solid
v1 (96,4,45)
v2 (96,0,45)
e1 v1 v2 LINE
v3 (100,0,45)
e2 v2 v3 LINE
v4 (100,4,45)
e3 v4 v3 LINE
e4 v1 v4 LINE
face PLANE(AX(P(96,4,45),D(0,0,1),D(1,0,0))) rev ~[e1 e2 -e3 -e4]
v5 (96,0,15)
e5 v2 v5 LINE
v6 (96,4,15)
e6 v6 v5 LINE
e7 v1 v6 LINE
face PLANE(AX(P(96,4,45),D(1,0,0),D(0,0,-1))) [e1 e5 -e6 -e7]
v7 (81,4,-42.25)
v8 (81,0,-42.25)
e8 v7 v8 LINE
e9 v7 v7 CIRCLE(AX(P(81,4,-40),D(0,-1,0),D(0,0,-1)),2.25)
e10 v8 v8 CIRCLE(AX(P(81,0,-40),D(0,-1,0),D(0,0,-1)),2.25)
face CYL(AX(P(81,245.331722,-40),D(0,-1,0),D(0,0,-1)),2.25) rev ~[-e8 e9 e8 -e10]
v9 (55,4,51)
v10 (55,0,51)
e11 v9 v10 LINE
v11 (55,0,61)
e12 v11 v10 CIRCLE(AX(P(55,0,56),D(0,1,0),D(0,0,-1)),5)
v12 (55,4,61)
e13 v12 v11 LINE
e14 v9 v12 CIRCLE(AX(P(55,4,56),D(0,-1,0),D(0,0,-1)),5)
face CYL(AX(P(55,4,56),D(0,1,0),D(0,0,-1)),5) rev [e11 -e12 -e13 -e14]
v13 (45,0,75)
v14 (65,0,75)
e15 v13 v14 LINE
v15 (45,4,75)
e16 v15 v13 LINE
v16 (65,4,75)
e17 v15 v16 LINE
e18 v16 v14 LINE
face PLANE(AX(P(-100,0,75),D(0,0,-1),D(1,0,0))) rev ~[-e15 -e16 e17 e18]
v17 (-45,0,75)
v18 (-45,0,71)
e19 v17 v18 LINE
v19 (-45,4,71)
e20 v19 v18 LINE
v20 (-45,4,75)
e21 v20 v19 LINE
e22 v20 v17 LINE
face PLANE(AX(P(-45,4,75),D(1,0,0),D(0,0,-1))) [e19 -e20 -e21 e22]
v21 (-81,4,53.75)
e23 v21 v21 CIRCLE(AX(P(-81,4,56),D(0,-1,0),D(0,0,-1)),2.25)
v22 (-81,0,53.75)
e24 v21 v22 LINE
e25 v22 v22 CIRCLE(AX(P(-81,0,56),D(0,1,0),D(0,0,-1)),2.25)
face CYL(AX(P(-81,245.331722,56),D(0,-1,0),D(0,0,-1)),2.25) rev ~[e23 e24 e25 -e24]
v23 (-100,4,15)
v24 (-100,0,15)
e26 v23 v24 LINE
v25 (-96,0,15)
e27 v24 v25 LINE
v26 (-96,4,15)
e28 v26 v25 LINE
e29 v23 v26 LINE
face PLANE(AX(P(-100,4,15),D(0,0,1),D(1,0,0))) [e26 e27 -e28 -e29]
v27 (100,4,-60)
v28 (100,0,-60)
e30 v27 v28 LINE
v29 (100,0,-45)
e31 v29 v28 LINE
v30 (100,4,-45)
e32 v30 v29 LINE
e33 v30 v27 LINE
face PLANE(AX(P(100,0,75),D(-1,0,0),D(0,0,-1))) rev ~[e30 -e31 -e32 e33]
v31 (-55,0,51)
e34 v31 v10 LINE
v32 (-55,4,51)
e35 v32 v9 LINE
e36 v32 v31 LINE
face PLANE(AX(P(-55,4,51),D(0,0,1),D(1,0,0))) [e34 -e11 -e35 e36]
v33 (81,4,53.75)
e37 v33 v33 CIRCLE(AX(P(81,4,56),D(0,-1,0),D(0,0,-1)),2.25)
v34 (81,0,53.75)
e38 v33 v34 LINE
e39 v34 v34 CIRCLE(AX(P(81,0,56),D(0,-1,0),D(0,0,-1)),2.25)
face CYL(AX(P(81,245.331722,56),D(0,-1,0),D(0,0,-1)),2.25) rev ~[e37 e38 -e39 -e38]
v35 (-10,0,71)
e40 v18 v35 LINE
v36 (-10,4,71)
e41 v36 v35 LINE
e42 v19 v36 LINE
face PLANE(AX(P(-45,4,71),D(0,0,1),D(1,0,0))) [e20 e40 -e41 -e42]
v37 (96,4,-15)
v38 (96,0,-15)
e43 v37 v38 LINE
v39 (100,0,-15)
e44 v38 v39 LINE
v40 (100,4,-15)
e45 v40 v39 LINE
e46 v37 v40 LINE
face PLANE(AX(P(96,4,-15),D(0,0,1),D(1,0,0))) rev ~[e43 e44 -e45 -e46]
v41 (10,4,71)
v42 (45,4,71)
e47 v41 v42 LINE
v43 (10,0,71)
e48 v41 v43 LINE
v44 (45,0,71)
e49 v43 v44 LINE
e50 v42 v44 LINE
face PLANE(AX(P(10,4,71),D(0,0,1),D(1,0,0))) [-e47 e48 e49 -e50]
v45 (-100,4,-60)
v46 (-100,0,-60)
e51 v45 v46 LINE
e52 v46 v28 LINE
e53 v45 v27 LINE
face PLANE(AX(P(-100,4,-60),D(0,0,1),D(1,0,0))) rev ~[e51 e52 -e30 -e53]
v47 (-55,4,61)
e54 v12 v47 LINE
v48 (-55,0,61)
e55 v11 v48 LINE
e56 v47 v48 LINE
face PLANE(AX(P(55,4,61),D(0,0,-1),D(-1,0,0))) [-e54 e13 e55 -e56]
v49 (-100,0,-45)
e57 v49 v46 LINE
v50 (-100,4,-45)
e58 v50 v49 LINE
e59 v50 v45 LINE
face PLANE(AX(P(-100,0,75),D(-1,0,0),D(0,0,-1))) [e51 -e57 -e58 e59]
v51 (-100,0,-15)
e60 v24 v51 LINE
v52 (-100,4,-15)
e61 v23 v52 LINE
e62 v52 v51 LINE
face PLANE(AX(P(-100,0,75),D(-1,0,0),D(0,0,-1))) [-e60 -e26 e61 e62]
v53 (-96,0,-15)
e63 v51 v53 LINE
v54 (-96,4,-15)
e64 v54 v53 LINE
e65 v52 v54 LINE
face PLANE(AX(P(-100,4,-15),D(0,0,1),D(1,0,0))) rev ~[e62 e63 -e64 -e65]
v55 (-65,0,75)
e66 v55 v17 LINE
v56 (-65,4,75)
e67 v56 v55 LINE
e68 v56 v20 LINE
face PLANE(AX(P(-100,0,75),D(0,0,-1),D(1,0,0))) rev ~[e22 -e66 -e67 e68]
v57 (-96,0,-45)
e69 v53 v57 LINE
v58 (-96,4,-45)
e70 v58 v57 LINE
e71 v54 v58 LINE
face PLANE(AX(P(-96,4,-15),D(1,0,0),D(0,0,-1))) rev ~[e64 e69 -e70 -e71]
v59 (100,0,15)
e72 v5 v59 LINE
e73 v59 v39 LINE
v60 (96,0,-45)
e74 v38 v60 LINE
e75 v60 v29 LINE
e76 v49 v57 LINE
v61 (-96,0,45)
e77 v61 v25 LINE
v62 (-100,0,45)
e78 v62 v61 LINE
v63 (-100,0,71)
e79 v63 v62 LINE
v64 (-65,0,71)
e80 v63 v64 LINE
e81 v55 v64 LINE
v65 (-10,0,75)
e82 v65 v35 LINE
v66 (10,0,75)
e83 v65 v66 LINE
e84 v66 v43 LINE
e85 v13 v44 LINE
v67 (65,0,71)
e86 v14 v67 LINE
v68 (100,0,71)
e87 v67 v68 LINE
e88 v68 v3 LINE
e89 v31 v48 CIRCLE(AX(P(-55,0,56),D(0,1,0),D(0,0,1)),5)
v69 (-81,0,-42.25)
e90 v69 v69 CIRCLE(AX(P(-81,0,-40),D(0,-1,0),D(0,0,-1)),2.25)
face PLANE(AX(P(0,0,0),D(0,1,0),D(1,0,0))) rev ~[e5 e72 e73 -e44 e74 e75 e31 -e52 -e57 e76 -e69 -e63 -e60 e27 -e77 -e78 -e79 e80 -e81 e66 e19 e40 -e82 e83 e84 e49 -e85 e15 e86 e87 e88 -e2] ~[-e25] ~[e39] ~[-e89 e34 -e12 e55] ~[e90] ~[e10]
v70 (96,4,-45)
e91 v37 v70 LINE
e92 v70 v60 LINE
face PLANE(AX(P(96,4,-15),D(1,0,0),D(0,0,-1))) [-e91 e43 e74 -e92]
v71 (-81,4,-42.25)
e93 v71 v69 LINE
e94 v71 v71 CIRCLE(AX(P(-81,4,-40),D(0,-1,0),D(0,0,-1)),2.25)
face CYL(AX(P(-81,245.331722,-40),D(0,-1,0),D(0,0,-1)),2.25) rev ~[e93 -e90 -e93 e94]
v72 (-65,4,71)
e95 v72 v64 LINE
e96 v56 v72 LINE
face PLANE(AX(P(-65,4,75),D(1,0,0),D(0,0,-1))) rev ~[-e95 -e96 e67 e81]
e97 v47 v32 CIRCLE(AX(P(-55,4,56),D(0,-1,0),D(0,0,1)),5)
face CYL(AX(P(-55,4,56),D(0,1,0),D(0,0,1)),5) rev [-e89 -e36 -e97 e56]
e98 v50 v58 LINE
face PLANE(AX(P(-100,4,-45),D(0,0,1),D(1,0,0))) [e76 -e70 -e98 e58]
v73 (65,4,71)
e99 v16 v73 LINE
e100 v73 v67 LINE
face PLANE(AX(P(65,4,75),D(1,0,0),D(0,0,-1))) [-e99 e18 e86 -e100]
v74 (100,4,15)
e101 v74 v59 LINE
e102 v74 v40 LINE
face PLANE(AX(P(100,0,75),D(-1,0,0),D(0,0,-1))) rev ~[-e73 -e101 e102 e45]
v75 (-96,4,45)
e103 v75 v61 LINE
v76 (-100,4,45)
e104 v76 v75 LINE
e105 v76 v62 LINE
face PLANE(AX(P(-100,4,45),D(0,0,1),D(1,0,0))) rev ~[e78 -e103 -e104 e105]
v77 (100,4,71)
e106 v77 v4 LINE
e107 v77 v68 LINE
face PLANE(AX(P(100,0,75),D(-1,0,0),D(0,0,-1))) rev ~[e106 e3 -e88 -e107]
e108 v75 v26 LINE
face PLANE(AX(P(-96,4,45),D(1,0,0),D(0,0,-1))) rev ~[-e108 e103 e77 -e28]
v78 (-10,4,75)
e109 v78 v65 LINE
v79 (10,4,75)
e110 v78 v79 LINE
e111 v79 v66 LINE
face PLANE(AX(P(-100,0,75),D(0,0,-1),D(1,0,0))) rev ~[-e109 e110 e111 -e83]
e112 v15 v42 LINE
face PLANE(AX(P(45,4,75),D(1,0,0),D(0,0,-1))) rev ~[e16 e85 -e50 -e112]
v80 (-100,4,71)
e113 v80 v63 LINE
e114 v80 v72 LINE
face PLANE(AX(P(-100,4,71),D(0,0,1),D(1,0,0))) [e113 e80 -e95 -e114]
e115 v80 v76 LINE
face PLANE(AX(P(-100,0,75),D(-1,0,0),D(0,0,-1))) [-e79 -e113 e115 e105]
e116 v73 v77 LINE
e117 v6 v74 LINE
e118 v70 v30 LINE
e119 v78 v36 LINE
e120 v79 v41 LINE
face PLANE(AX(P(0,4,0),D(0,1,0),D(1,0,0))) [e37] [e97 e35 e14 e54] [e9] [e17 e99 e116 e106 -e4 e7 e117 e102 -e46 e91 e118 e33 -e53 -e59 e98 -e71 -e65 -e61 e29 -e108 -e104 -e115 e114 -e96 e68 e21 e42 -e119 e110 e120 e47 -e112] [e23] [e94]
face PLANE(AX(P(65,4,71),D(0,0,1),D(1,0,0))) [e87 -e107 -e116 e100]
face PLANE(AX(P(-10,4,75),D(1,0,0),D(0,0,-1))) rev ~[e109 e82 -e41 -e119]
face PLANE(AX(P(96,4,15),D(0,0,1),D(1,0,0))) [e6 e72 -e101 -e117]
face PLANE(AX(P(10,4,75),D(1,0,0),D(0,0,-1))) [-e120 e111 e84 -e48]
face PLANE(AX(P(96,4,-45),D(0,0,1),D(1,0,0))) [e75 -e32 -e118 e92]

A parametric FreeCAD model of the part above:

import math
import FreeCAD as App
import Part
import Sketcher


def add_polygon(sketch, points):
    """Adds a closed chain of lines whose ends are joined by coincident constraints."""
    first, n = sketch.GeometryCount, len(points)
    for a, b in zip(points, points[1:] + points[:1]):
        sketch.addGeometry(Part.LineSegment(App.Vector(*a, 0), App.Vector(*b, 0)), False)
    for i in range(n):
        sketch.addConstraint(Sketcher.Constraint("Coincident", first + i, 2, first + (i + 1) % n, 1))

doc = App.newDocument("Part")
body = doc.addObject("PartDesign::Body", "Body")

# Sketch on XZ plane
sketch1 = doc.addObject("Sketcher::SketchObject", "Sketch")
body.addObject(sketch1)
sketch1.AttachmentSupport = (doc.XZ_Plane, [""])
sketch1.MapMode = "FlatFace"
add_polygon(sketch1, [(-100, -75), (-100, 75), (100, 75), (100, -75)])  # lines 0-3
sketch1.addConstraint(Sketcher.Constraint("Vertical", 0))
sketch1.addConstraint(Sketcher.Constraint("Horizontal", 1))
sketch1.addConstraint(Sketcher.Constraint("Vertical", 2))
sketch1.addConstraint(Sketcher.Constraint("Horizontal", 3))
sketch1.addConstraint(Sketcher.Constraint("Symmetric", 0, 2, 2, 2, -1, 1))
sketch1.addConstraint(Sketcher.Constraint("DistanceX", 1, 1, 1, 2, 200.0))
sketch1.addConstraint(Sketcher.Constraint("DistanceY", 0, 1, 0, 2, 150.0))
pad1 = doc.addObject("PartDesign::Pad", "Pad")
body.addObject(pad1)
pad1.Profile = sketch1
pad1.Length = 4
pad1.Reversed = True

# Sketch on XZ plane
sketch2 = doc.addObject("Sketcher::SketchObject", "Sketch001")
body.addObject(sketch2)
sketch2.AttachmentSupport = (doc.XZ_Plane, [""])
sketch2.MapMode = "FlatFace"
sketch2.AttachmentOffset = App.Placement(App.Vector(0, 0, -4), App.Rotation())
add_polygon(sketch2, [(-45, 71), (-45, 75), (-10, 75), (-10, 71)])  # lines 0-3
add_polygon(sketch2, [(10, 71), (10, 75), (45, 75), (45, 71)])  # lines 4-7
add_polygon(sketch2, [(65, 71), (65, 75), (100, 75), (100, 71)])  # lines 8-11
add_polygon(sketch2, [(-100, 71), (-100, 75), (-65, 75), (-65, 71)])  # lines 12-15
add_polygon(sketch2, [(96, -45), (96, -15), (100, -15), (100, -45)])  # lines 16-19
add_polygon(sketch2, [(96, 15), (96, 45), (100, 45), (100, 15)])  # lines 20-23
add_polygon(sketch2, [(-100, -45), (-100, -15), (-96, -15), (-96, -45)])  # lines 24-27
add_polygon(sketch2, [(-100, 15), (-100, 45), (-96, 45), (-96, 15)])  # lines 28-31
sketch2.addConstraint(Sketcher.Constraint("Vertical", 0))
sketch2.addConstraint(Sketcher.Constraint("Horizontal", 1))
sketch2.addConstraint(Sketcher.Constraint("Vertical", 2))
sketch2.addConstraint(Sketcher.Constraint("Horizontal", 3))
sketch2.addConstraint(Sketcher.Constraint("Vertical", 4))
sketch2.addConstraint(Sketcher.Constraint("Horizontal", 5))
sketch2.addConstraint(Sketcher.Constraint("Vertical", 6))
sketch2.addConstraint(Sketcher.Constraint("Horizontal", 7))
sketch2.addConstraint(Sketcher.Constraint("Vertical", 8))
sketch2.addConstraint(Sketcher.Constraint("Horizontal", 9))
sketch2.addConstraint(Sketcher.Constraint("Vertical", 10))
sketch2.addConstraint(Sketcher.Constraint("Horizontal", 11))
sketch2.addConstraint(Sketcher.Constraint("Vertical", 12))
sketch2.addConstraint(Sketcher.Constraint("Horizontal", 13))
sketch2.addConstraint(Sketcher.Constraint("Vertical", 14))
sketch2.addConstraint(Sketcher.Constraint("Horizontal", 15))
sketch2.addConstraint(Sketcher.Constraint("Vertical", 16))
sketch2.addConstraint(Sketcher.Constraint("Horizontal", 17))
sketch2.addConstraint(Sketcher.Constraint("Vertical", 18))
sketch2.addConstraint(Sketcher.Constraint("Horizontal", 19))
sketch2.addConstraint(Sketcher.Constraint("Vertical", 20))
sketch2.addConstraint(Sketcher.Constraint("Horizontal", 21))
sketch2.addConstraint(Sketcher.Constraint("Vertical", 22))
sketch2.addConstraint(Sketcher.Constraint("Horizontal", 23))
sketch2.addConstraint(Sketcher.Constraint("Vertical", 24))
sketch2.addConstraint(Sketcher.Constraint("Horizontal", 25))
sketch2.addConstraint(Sketcher.Constraint("Vertical", 26))
sketch2.addConstraint(Sketcher.Constraint("Horizontal", 27))
sketch2.addConstraint(Sketcher.Constraint("Vertical", 28))
sketch2.addConstraint(Sketcher.Constraint("Horizontal", 29))
sketch2.addConstraint(Sketcher.Constraint("Vertical", 30))
sketch2.addConstraint(Sketcher.Constraint("Horizontal", 31))
sketch2.addConstraint(Sketcher.Constraint("Symmetric", 22, 2, 24, 2, -1, 1))
sketch2.addConstraint(Sketcher.Constraint("Symmetric", 20, 2, 26, 2, -1, 1))
sketch2.addConstraint(Sketcher.Constraint("Symmetric", 18, 2, 28, 2, -1, 1))
sketch2.addConstraint(Sketcher.Constraint("Symmetric", 16, 2, 30, 2, -1, 1))
sketch2.addConstraint(Sketcher.Constraint("Symmetric", 1, 2, 4, 2, -2))
sketch2.addConstraint(Sketcher.Constraint("Symmetric", 3, 2, 6, 2, -2))
sketch2.addConstraint(Sketcher.Constraint("Symmetric", 9, 2, 12, 2, -2))
sketch2.addConstraint(Sketcher.Constraint("Symmetric", 11, 2, 14, 2, -2))
sketch2.addConstraint(Sketcher.Constraint("Symmetric", 17, 2, 24, 2, -2))
sketch2.addConstraint(Sketcher.Constraint("Symmetric", 19, 2, 26, 2, -2))
sketch2.addConstraint(Sketcher.Constraint("Horizontal", 5, 2, 8, 2))
sketch2.addConstraint(Sketcher.Constraint("Horizontal", 7, 2, 10, 2))
sketch2.addConstraint(Sketcher.Constraint("Vertical", 10, 2, 17, 2))
sketch2.addConstraint(Sketcher.Constraint("Equal", 7, 9))
sketch2.addConstraint(Sketcher.Constraint("Equal", 31, 0))
sketch2.addConstraint(Sketcher.Constraint("DistanceX", 1, 1, 1, 2, 35.0))
sketch2.addConstraint(Sketcher.Constraint("DistanceX", 17, 1, 17, 2, 4.0))
sketch2.addConstraint(Sketcher.Constraint("DistanceY", 16, 1, 16, 2, 30.0))
sketch2.addConstraint(Sketcher.Constraint("DistanceX", 0, 2, -1, 1, 45.0))
sketch2.addConstraint(Sketcher.Constraint("DistanceY", -1, 1, 0, 2, 75.0))
sketch2.addConstraint(Sketcher.Constraint("DistanceX", -1, 1, 8, 2, 65.0))
sketch2.addConstraint(Sketcher.Constraint("DistanceY", 16, 2, -1, 1, 15.0))
pocket1 = doc.addObject("PartDesign::Pocket", "Pocket")
body.addObject(pocket1)
pocket1.Profile = sketch2
pocket1.Type = "ThroughAll"
pocket1.Reversed = True

# Sketch on XZ plane
sketch3 = doc.addObject("Sketcher::SketchObject", "Sketch002")
body.addObject(sketch3)
sketch3.AttachmentSupport = (doc.XZ_Plane, [""])
sketch3.MapMode = "FlatFace"
sketch3.AttachmentOffset = App.Placement(App.Vector(0, 0, -4), App.Rotation())
add_polygon(sketch3, [(-100, -75), (-100, -60), (100, -60), (100, -75)])  # lines 0-3
sketch3.addConstraint(Sketcher.Constraint("Vertical", 0))
sketch3.addConstraint(Sketcher.Constraint("Horizontal", 1))
sketch3.addConstraint(Sketcher.Constraint("Vertical", 2))
sketch3.addConstraint(Sketcher.Constraint("Horizontal", 3))
sketch3.addConstraint(Sketcher.Constraint("DistanceX", 1, 1, 1, 2, 200.0))
sketch3.addConstraint(Sketcher.Constraint("DistanceY", 0, 1, 0, 2, 15.0))
sketch3.addConstraint(Sketcher.Constraint("DistanceX", 0, 2, -1, 1, 100.0))
sketch3.addConstraint(Sketcher.Constraint("DistanceY", 0, 2, -1, 1, 60.0))
pocket2 = doc.addObject("PartDesign::Pocket", "Pocket001")
body.addObject(pocket2)
pocket2.Profile = sketch3
pocket2.Type = "ThroughAll"
pocket2.Reversed = True

# Sketch on XZ plane
sketch4 = doc.addObject("Sketcher::SketchObject", "Sketch003")
body.addObject(sketch4)
sketch4.AttachmentSupport = (doc.XZ_Plane, [""])
sketch4.MapMode = "FlatFace"
sketch4.AttachmentOffset = App.Placement(App.Vector(0, 0, -4), App.Rotation())
sketch4.addGeometry(Part.Circle(App.Vector(-81, -40, 0), App.Vector(0, 0, 1), 2.2), False)
sketch4.addGeometry(Part.Circle(App.Vector(-81, 56, 0), App.Vector(0, 0, 1), 2.2), False)
sketch4.addGeometry(Part.Circle(App.Vector(81, 56, 0), App.Vector(0, 0, 1), 2.2), False)
sketch4.addGeometry(Part.Circle(App.Vector(81, -40, 0), App.Vector(0, 0, 1), 2.2), False)
sketch4.addConstraint(Sketcher.Constraint("Equal", 0, 1))
sketch4.addConstraint(Sketcher.Constraint("Equal", 1, 2))
sketch4.addConstraint(Sketcher.Constraint("Equal", 2, 3))
sketch4.addConstraint(Sketcher.Constraint("Symmetric", 1, 3, 2, 3, -2))
sketch4.addConstraint(Sketcher.Constraint("Symmetric", 0, 3, 3, 3, -2))
sketch4.addConstraint(Sketcher.Constraint("Vertical", 0, 3, 1, 3))
sketch4.addConstraint(Sketcher.Constraint("Diameter", 0, 4.5))
sketch4.addConstraint(Sketcher.Constraint("DistanceX", 0, 3, -1, 1, 81.0))
sketch4.addConstraint(Sketcher.Constraint("DistanceY", 0, 3, -1, 1, 40.0))
sketch4.addConstraint(Sketcher.Constraint("DistanceY", -1, 1, 1, 3, 56.0))
doc.recompute()
hole = doc.addObject("PartDesign::Hole", "Hole")
body.addObject(hole)
hole.Profile = sketch4
hole.ThreadType = "None"
hole.Diameter = 4.5
hole.DepthType = "ThroughAll"
hole.Reversed = True

# Sketch on XZ plane
sketch5 = doc.addObject("Sketcher::SketchObject", "Sketch004")
body.addObject(sketch5)
sketch5.AttachmentSupport = (doc.XZ_Plane, [""])
sketch5.MapMode = "FlatFace"
sketch5.AttachmentOffset = App.Placement(App.Vector(0, 0, -4), App.Rotation())
sketch5.addGeometry(Part.Circle(App.Vector(-81, 56, 0), App.Vector(0, 0, 1), 2.2), False)
sketch5.addGeometry(Part.LineSegment(App.Vector(-55, 61, 0), App.Vector(55, 61, 0)), False)
sketch5.addGeometry(Part.ArcOfCircle(Part.Circle(App.Vector(55, 56, 0), App.Vector(0, 0, 1), 5), math.radians(-90), math.radians(90)), False)
sketch5.addGeometry(Part.LineSegment(App.Vector(55, 51, 0), App.Vector(-55, 51, 0)), False)
sketch5.addGeometry(Part.ArcOfCircle(Part.Circle(App.Vector(-55, 56, 0), App.Vector(0, 0, 1), 5), math.radians(90), math.radians(270)), False)
sketch5.addConstraint(Sketcher.Constraint("Tangent", 1, 2, 2, 2))
sketch5.addConstraint(Sketcher.Constraint("Tangent", 2, 1, 3, 1))
sketch5.addConstraint(Sketcher.Constraint("Tangent", 3, 2, 4, 2))
sketch5.addConstraint(Sketcher.Constraint("Tangent", 4, 1, 1, 1))
sketch5.addConstraint(Sketcher.Constraint("Horizontal", 1))
sketch5.addConstraint(Sketcher.Constraint("Horizontal", 3))
sketch5.addConstraint(Sketcher.Constraint("Horizontal", 0, 3, 2, 3))
sketch5.addConstraint(Sketcher.Constraint("Radius", 2, 5.0))
sketch5.addConstraint(Sketcher.Constraint("Diameter", 0, 4.5))
sketch5.addConstraint(Sketcher.Constraint("DistanceX", 1, 1, 1, 2, 110.0))
sketch5.addConstraint(Sketcher.Constraint("DistanceX", 0, 3, -1, 1, 81.0))
sketch5.addConstraint(Sketcher.Constraint("DistanceY", -1, 1, 0, 3, 56.0))
sketch5.addConstraint(Sketcher.Constraint("DistanceX", -1, 1, 2, 3, 55.0))
pocket3 = doc.addObject("PartDesign::Pocket", "Pocket002")
body.addObject(pocket3)
pocket3.Profile = sketch5
pocket3.Type = "ThroughAll"
pocket3.Reversed = True

doc.recompute()
